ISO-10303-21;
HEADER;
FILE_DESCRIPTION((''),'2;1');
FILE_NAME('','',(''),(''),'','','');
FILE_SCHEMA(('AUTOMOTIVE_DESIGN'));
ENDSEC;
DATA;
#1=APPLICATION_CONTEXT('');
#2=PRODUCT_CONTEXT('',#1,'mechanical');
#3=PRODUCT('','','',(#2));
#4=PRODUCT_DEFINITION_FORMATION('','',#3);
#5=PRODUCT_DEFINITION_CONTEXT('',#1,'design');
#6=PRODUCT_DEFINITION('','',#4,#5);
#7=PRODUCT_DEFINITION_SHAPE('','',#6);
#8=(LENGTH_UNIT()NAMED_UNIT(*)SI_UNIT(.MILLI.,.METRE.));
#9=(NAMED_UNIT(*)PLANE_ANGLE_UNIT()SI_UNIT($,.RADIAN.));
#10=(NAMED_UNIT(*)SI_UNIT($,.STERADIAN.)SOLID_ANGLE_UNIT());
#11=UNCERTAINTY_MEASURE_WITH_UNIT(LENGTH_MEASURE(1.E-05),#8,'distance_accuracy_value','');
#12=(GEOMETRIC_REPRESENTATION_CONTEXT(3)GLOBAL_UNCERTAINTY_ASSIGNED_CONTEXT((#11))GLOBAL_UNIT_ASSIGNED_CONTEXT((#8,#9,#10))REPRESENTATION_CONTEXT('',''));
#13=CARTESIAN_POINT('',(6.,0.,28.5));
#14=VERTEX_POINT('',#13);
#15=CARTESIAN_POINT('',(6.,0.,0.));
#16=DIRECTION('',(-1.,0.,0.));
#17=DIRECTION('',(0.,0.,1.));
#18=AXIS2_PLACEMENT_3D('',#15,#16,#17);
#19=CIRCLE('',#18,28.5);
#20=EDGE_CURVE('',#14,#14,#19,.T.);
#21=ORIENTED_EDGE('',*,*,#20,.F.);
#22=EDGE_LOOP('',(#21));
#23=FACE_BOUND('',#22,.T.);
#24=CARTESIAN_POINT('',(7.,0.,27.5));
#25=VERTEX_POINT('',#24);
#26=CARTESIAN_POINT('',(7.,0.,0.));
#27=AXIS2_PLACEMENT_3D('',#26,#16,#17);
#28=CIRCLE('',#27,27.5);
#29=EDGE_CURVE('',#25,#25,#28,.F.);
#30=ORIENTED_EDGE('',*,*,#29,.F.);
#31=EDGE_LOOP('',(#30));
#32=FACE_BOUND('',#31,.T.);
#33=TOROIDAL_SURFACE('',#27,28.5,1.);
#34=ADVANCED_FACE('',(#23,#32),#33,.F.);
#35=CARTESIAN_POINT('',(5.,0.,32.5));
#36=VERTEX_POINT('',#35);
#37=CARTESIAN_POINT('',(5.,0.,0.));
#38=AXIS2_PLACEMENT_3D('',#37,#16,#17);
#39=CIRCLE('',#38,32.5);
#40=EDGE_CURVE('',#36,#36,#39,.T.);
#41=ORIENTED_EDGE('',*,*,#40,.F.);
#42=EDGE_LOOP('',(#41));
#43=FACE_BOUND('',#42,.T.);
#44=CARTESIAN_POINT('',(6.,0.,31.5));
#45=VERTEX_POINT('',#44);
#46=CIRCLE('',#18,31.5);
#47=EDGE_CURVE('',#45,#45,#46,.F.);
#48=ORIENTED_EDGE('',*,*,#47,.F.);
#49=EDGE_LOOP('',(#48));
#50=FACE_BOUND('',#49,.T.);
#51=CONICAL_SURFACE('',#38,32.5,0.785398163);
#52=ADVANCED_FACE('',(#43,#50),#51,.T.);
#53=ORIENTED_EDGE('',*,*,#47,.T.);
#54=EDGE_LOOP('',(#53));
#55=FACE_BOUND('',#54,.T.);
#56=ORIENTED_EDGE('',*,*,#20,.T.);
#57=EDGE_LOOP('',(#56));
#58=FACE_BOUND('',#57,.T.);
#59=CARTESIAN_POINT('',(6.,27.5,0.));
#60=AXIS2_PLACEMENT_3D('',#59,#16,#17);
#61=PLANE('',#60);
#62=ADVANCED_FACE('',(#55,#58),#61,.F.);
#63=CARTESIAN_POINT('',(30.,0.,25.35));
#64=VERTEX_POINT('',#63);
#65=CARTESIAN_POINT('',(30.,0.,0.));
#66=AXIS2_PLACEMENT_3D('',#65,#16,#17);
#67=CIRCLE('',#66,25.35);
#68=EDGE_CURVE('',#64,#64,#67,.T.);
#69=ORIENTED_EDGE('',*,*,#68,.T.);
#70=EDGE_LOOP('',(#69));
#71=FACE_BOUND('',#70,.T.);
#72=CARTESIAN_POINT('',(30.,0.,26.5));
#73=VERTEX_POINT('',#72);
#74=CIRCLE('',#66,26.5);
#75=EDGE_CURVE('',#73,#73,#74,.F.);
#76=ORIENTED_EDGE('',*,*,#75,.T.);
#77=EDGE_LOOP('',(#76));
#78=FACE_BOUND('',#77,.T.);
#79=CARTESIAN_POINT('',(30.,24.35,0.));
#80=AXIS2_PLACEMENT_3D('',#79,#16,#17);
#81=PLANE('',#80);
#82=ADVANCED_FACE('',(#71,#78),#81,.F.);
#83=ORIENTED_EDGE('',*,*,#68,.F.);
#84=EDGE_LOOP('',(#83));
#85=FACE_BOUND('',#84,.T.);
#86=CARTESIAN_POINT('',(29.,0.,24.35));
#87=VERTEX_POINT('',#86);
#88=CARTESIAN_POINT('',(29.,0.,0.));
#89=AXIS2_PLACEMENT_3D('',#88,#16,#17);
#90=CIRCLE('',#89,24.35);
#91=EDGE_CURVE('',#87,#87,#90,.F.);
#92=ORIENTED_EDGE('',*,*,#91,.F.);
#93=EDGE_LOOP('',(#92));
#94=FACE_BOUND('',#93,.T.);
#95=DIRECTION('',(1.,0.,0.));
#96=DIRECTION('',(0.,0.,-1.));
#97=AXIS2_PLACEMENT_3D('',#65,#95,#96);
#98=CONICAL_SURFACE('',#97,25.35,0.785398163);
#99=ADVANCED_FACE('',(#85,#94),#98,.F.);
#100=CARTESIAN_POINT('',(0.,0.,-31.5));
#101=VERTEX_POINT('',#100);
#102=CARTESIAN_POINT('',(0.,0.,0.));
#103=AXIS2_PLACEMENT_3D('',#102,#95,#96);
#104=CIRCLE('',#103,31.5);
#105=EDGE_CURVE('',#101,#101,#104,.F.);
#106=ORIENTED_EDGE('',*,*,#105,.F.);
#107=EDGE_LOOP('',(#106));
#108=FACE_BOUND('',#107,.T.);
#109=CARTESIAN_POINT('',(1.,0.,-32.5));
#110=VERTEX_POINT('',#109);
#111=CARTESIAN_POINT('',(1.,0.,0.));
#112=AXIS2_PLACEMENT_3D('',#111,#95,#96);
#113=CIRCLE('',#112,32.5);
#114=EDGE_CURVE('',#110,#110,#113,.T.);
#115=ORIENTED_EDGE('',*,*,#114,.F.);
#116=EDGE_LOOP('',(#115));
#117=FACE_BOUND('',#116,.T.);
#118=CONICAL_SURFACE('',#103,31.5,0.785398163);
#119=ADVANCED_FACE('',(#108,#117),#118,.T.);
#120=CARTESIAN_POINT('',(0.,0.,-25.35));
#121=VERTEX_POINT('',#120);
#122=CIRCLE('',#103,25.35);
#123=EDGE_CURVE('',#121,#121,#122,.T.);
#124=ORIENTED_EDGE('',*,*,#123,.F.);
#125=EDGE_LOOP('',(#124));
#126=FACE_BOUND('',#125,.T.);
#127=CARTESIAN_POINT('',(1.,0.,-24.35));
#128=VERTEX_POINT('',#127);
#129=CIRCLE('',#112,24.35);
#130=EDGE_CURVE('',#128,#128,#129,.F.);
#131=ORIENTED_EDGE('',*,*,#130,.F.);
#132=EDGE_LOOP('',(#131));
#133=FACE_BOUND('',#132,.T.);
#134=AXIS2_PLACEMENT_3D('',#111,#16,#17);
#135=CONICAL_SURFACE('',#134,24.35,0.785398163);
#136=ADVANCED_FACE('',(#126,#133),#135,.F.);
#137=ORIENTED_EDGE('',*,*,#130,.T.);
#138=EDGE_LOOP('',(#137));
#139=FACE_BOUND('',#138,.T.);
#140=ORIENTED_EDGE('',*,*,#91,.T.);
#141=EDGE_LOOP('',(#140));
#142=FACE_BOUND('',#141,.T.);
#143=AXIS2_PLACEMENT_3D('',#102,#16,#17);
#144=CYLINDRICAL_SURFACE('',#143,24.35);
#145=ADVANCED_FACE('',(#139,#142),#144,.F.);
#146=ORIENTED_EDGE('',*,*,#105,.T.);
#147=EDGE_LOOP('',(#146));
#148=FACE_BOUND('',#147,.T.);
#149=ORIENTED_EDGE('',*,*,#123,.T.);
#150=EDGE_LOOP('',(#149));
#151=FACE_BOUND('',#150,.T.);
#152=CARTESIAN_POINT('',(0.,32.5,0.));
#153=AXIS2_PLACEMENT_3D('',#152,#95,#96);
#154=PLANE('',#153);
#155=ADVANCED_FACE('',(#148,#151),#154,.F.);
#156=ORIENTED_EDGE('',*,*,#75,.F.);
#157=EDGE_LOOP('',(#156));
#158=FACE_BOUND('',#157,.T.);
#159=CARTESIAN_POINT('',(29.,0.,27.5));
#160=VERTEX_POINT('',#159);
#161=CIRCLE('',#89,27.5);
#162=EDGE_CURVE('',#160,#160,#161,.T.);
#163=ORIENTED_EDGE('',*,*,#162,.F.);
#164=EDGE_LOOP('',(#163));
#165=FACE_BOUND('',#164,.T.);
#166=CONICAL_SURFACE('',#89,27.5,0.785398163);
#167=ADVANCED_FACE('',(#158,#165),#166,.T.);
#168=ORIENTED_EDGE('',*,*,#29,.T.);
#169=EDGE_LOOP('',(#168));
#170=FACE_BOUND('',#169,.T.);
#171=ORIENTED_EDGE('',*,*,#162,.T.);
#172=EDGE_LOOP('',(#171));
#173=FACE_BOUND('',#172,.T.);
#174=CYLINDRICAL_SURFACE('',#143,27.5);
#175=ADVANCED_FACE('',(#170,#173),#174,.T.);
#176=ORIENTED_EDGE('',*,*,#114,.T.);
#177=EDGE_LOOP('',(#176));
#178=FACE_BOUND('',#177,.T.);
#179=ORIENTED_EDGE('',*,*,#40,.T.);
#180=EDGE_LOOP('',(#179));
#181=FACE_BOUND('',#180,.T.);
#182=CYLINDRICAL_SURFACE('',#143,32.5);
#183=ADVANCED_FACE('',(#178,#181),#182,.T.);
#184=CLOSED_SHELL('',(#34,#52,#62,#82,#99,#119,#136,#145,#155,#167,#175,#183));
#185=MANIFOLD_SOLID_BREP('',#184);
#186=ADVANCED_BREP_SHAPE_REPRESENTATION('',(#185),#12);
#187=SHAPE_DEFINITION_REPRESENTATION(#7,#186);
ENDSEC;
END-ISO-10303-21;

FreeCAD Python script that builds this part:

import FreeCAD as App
import Part
import Sketcher

V = App.Vector
Q = App.Units.Quantity


def edges_at(feature, points):
    """Names of the edges that pass closest to the given points."""
    edges = feature.Shape.Edges
    near = lambda p: min(range(len(edges)), key=lambda i: edges[i].distToShape(Part.Vertex(*p))[0])
    return sorted({f"Edge{near(p) + 1}" for p in points})


def add_polygon(sketch, points):
    """Adds a closed chain of lines whose ends are joined by coincident constraints."""
    first, n = sketch.GeometryCount, len(points)
    for a, b in zip(points, points[1:] + points[:1]):
        sketch.addGeometry(Part.LineSegment(App.Vector(*a, 0), App.Vector(*b, 0)), False)
    for i in range(n):
        sketch.addConstraint(Sketcher.Constraint("Coincident", first + i, 2, first + (i + 1) % n, 1))

doc = App.newDocument("Part")
body = doc.addObject("PartDesign::Body", "Body")

sketch1 = body.newObject("Sketcher::SketchObject", "Sketch")
sketch1.AttachmentSupport = (doc.getObject("XY_Plane"), [""])
sketch1.MapMode = "FlatFace"
add_polygon(sketch1, [(0, 24.4), (30, 24.4), (30, 27.5), (6, 27.5), (6, 32.5), (0, 32.5)])
sketch1.addConstraint(Sketcher.Constraint("Horizontal", 0))
sketch1.addConstraint(Sketcher.Constraint("Vertical", 1))
sketch1.addConstraint(Sketcher.Constraint("Horizontal", 2))
sketch1.addConstraint(Sketcher.Constraint("Vertical", 3))
sketch1.addConstraint(Sketcher.Constraint("Horizontal", 4))
sketch1.addConstraint(Sketcher.Constraint("Vertical", 5))
sketch1.addConstraint(Sketcher.Constraint("PointOnObject", 4, 2, -2))
sketch1.addConstraint(Sketcher.Constraint("DistanceX", 0, 1, 0, 2, Q("30 mm")))
sketch1.addConstraint(Sketcher.Constraint("DistanceX", 2, 2, 2, 1, Q("24 mm")))
sketch1.addConstraint(Sketcher.Constraint("DistanceY", 3, 1, 3, 2, Q("5 mm")))
sketch1.addConstraint(Sketcher.Constraint("DistanceY", 1, 1, 1, 2, Q("3.15 mm")))
sketch1.addConstraint(Sketcher.Constraint("DistanceY", -1, 1, 1, 2, Q("27.5 mm")))
revolution = body.newObject("PartDesign::Revolution", "Revolution")
revolution.Profile = sketch1
revolution.ReferenceAxis = (sketch1, ["H_Axis"])
revolution.Angle = 360
doc.recompute()

chamfer = body.newObject("PartDesign::Chamfer", "Chamfer")
chamfer.Base = (revolution, edges_at(revolution, [
    (0, 0, -32.5),
    (6, 0, -32.5),
    (30, 0, -27.5),
    (30, 0, -24.35),
    (0, 0, -24.35),
]))
chamfer.Size = 1
doc.recompute()

fillet = body.newObject("PartDesign::Fillet", "Fillet")
fillet.Base = (chamfer, edges_at(chamfer, [(6, 0, -27.5)]))
fillet.Radius = 1

doc.recompute()
